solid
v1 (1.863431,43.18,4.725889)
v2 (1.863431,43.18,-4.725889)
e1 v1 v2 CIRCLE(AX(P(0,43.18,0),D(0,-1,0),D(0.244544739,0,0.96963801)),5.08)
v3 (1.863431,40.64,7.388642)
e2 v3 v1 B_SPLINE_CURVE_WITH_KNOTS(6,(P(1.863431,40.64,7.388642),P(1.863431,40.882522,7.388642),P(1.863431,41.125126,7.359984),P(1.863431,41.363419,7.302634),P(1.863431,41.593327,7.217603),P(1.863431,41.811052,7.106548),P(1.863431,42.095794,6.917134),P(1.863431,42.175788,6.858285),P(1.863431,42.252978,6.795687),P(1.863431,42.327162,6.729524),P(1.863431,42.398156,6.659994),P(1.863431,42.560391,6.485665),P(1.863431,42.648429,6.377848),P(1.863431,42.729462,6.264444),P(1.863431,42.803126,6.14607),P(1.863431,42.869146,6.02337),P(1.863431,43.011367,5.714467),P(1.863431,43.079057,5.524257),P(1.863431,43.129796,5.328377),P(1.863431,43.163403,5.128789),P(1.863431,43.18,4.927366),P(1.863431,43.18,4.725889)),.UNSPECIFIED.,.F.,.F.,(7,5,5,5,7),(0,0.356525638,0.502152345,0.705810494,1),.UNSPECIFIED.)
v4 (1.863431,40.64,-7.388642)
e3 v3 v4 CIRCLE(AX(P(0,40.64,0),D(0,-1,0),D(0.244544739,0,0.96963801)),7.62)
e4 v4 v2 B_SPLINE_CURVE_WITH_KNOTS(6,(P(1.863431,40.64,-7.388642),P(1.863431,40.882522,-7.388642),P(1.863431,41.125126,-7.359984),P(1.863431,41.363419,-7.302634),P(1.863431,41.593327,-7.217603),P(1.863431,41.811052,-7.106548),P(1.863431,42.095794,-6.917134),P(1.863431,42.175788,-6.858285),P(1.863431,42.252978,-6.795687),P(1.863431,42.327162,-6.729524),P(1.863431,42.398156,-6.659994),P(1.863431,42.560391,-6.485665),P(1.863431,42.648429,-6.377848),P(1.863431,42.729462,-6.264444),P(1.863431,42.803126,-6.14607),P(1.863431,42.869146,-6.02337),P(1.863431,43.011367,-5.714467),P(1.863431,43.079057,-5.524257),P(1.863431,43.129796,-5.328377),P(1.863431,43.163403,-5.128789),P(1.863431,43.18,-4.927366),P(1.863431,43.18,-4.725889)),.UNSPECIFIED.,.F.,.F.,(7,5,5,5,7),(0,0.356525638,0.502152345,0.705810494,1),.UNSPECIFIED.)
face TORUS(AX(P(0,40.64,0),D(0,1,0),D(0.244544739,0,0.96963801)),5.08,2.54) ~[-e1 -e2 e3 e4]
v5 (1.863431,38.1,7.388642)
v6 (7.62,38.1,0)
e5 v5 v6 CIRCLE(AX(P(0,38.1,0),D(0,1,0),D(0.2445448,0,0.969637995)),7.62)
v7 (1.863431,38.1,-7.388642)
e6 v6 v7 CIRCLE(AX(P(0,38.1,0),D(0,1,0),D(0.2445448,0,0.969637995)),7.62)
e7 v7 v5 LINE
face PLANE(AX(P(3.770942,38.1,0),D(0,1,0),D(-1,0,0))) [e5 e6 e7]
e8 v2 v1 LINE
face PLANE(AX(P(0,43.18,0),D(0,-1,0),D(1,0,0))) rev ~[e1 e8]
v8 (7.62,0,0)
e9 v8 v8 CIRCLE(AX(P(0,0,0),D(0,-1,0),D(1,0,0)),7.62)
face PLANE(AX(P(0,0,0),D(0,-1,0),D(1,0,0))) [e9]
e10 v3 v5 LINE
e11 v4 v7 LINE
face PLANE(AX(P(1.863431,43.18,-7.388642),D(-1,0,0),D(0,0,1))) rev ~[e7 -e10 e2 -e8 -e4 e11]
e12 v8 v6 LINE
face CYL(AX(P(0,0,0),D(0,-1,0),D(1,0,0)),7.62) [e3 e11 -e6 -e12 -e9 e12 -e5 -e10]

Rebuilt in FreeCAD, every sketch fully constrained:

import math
import FreeCAD as App
import Part
import Sketcher
Q = App.Units.Quantity


def edges_at(feature, points):
    """Names of the edges that pass closest to the given points."""
    edges = feature.Shape.Edges
    near = lambda p: min(range(len(edges)), key=lambda i: edges[i].distToShape(Part.Vertex(*p))[0])
    return sorted({f"Edge{near(p) + 1}" for p in points})

doc = App.newDocument("Part")
body = doc.addObject("PartDesign::Body", "Body")

# Sketch on XZ plane
sketch1 = body.newObject("Sketcher::SketchObject", "Sketch")
sketch1.AttachmentSupport = (doc.getObject("XZ_Plane"), [""])
sketch1.MapMode = "FlatFace"
sketch1.addGeometry(Part.Circle(App.Vector(0, 0, 0), App.Vector(0, 0, 1), 8), False)
sketch1.addConstraint(Sketcher.Constraint("Coincident", 0, 3, -1, 1))
sketch1.addConstraint(Sketcher.Constraint("Diameter", 0, Q("0.6 in")))
pad1 = body.newObject("PartDesign::Pad", "Pad")
pad1.Profile = sketch1
pad1.Length = Q("1.7 in")
pad1.Reversed = True

# Sketch on XZ plane
sketch2 = body.newObject("Sketcher::SketchObject", "Sketch001")
sketch2.AttachmentSupport = (doc.getObject("XZ_Plane"), [""])
sketch2.MapMode = "FlatFace"
sketch2.AttachmentOffset = App.Placement(App.Vector(0, 0, -1.7 * 25.4), App.Rotation())
sketch2.addGeometry(Part.LineSegment(App.Vector(2, -7, 0), App.Vector(2, 7, 0)), False)
sketch2.addGeometry(Part.ArcOfCircle(Part.Circle(App.Vector(0, 0, 0), App.Vector(0, 0, 1), 8), math.radians(-76), math.radians(76)), False)
sketch2.addConstraint(Sketcher.Constraint("Coincident", 0, 1, 1, 1))
sketch2.addConstraint(Sketcher.Constraint("Coincident", 1, 2, 0, 2))
sketch2.addConstraint(Sketcher.Constraint("Vertical", 0))
sketch2.addConstraint(Sketcher.Constraint("Coincident", 1, 3, -1, 1))
sketch2.addConstraint(Sketcher.Constraint("Radius", 1, Q("0.3 in")))
sketch2.addConstraint(Sketcher.Constraint("DistanceY", 0, 1, 0, 2, Q("14.777284 mm")))
pocket1 = body.newObject("PartDesign::Pocket", "Pocket")
pocket1.Profile = sketch2
pocket1.Length = Q("0.2 in")
pocket1.Reversed = True
doc.recompute()

fillet = body.newObject("PartDesign::Fillet", "Fillet")
fillet.Base = (pocket1, edges_at(pocket1, [(-7.62, 43.18, 0)]))
fillet.Radius = Q("0.1 in")

doc.recompute()
